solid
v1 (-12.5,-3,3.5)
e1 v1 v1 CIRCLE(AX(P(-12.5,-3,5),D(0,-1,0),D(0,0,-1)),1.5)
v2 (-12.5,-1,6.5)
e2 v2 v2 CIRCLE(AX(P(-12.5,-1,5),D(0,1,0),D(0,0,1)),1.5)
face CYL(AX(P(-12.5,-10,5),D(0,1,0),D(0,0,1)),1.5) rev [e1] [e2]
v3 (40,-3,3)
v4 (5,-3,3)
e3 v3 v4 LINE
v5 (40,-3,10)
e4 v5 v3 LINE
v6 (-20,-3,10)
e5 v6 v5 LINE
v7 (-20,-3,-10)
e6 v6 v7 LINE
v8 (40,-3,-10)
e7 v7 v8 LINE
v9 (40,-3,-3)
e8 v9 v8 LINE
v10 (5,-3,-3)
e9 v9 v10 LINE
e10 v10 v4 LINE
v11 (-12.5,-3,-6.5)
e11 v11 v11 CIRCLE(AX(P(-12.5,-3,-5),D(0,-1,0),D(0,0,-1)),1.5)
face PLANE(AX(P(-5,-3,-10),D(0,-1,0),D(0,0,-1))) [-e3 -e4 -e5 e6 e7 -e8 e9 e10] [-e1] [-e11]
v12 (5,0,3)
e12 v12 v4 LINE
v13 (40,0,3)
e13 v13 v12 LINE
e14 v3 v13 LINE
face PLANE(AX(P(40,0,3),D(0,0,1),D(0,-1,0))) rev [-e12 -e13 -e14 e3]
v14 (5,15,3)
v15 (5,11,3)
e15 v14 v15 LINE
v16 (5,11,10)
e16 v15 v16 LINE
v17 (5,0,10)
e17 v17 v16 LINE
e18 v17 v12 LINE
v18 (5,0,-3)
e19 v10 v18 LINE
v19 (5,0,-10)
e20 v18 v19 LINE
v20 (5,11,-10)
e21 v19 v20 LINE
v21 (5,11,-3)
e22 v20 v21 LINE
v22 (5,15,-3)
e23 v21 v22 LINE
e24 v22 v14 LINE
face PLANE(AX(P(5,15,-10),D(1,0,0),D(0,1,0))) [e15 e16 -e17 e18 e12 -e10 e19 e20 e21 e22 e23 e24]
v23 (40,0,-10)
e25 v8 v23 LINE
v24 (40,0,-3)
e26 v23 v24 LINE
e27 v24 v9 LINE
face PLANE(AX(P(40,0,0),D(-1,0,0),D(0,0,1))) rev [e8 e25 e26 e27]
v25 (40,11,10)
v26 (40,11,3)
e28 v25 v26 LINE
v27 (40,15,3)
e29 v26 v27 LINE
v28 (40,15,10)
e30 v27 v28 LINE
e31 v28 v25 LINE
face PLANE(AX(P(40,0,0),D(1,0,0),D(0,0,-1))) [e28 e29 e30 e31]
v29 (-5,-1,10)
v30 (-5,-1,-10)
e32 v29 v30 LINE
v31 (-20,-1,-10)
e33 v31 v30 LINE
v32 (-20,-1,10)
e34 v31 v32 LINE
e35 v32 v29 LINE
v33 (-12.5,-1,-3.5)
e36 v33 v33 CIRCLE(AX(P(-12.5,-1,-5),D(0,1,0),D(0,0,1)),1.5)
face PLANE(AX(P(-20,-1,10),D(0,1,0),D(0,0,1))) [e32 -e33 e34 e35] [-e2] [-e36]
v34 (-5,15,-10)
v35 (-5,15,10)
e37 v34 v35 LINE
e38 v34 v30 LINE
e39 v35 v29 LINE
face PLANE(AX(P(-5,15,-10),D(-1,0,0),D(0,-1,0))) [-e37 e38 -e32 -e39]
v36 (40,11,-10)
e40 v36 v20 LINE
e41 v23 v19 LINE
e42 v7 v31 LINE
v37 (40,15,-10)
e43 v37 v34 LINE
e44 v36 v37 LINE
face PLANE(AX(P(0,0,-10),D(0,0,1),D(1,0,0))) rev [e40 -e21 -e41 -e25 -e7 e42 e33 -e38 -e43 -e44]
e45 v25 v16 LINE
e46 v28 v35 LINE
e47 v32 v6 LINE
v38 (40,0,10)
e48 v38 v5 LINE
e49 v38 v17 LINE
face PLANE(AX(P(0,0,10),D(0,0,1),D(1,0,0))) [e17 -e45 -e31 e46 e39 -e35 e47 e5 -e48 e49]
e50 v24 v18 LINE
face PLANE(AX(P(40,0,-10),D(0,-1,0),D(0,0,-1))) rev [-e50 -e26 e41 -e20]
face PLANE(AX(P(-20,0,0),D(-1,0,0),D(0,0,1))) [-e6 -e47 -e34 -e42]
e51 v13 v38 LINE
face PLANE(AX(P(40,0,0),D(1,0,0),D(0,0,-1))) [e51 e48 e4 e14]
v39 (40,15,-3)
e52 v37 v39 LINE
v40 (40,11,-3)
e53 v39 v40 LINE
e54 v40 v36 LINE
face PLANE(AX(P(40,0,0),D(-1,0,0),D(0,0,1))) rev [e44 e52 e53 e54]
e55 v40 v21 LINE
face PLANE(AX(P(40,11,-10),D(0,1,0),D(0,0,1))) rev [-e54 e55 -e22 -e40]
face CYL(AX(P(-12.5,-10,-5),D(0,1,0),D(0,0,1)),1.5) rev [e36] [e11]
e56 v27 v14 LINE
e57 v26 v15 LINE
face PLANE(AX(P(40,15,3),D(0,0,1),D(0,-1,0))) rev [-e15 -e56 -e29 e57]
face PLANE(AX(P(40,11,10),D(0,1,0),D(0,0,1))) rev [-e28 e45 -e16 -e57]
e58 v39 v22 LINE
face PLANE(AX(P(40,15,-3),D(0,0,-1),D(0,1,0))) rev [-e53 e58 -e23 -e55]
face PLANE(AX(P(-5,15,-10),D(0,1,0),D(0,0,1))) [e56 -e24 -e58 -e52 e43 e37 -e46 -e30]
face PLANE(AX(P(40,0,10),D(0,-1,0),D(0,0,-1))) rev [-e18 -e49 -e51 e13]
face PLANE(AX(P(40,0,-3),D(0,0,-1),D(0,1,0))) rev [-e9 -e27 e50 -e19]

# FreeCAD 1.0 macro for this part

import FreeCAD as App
import Part
import Sketcher
from FreeCAD import Vector


def add_polygon(sketch, points):
    """Adds a closed chain of lines whose ends are joined by coincident constraints."""
    first, n = sketch.GeometryCount, len(points)
    for a, b in zip(points, points[1:] + points[:1]):
        sketch.addGeometry(Part.LineSegment(App.Vector(*a, 0), App.Vector(*b, 0)), False)
    for i in range(n):
        sketch.addConstraint(Sketcher.Constraint("Coincident", first + i, 2, first + (i + 1) % n, 1))

doc = App.newDocument("Part")
body = doc.addObject("PartDesign::Body", "Body")

# Sketch on XY plane
sketch1 = doc.addObject("Sketcher::SketchObject", "Sketch")
body.addObject(sketch1)
sketch1.AttachmentSupport = (doc.XY_Plane, [""])
sketch1.MapMode = "FlatFace"
add_polygon(sketch1, [(-5, 15), (-5, -3), (5, -3), (5, 15)])  # lines 0-3
sketch1.addConstraint(Sketcher.Constraint("Vertical", 0))
sketch1.addConstraint(Sketcher.Constraint("Horizontal", 1))
sketch1.addConstraint(Sketcher.Constraint("Vertical", 2))
sketch1.addConstraint(Sketcher.Constraint("Horizontal", 3))
sketch1.addConstraint(Sketcher.Constraint("DistanceX", 1, 1, 1, 2, 10.0))
sketch1.addConstraint(Sketcher.Constraint("DistanceY", 0, 2, 0, 1, 18.0))
sketch1.addConstraint(Sketcher.Constraint("DistanceX", 0, 2, -1, 1, 5.0))
sketch1.addConstraint(Sketcher.Constraint("DistanceY", 0, 2, -1, 1, 3.0))
pad1 = doc.addObject("PartDesign::Pad", "Pad")
body.addObject(pad1)
pad1.Profile = sketch1
pad1.Type = "TwoLengths"
pad1.Length = 10
pad1.Length2 = 10

# Sketch on YZ plane
sketch2 = doc.addObject("Sketcher::SketchObject", "Sketch001")
body.addObject(sketch2)
sketch2.AttachmentSupport = (doc.YZ_Plane, [""])
sketch2.MapMode = "FlatFace"
add_polygon(sketch2, [(-1, 10), (-3, 10), (-3, -10), (-1, -10)])  # lines 0-3
sketch2.addConstraint(Sketcher.Constraint("Horizontal", 0))
sketch2.addConstraint(Sketcher.Constraint("Vertical", 1))
sketch2.addConstraint(Sketcher.Constraint("Horizontal", 2))
sketch2.addConstraint(Sketcher.Constraint("Vertical", 3))
sketch2.addConstraint(Sketcher.Constraint("DistanceX", 0, 2, 0, 1, 2.0))
sketch2.addConstraint(Sketcher.Constraint("DistanceY", 1, 2, 1, 1, 20.0))
sketch2.addConstraint(Sketcher.Constraint("DistanceX", 0, 2, -1, 1, 3.0))
sketch2.addConstraint(Sketcher.Constraint("DistanceY", -1, 1, 0, 2, 10.0))
pad2 = doc.addObject("PartDesign::Pad", "Pad001")
body.addObject(pad2)
pad2.Profile = sketch2
pad2.Length = 20
pad2.Reversed = True

# Sketch on YZ plane
sketch3 = doc.addObject("Sketcher::SketchObject", "Sketch002")
body.addObject(sketch3)
sketch3.AttachmentSupport = (doc.YZ_Plane, [""])
sketch3.MapMode = "FlatFace"
add_polygon(sketch3, [(15, 10), (11, 10), (11, 3), (15, 3)])  # lines 0-3
add_polygon(sketch3, [(0, 10), (-3, 10), (-3, 3), (0, 3)])  # lines 4-7
add_polygon(sketch3, [(0, -3), (-3, -3), (-3, -10), (0, -10)])  # lines 8-11
add_polygon(sketch3, [(15, -3), (11, -3), (11, -10), (15, -10)])  # lines 12-15
sketch3.addConstraint(Sketcher.Constraint("Horizontal", 0))
sketch3.addConstraint(Sketcher.Constraint("Vertical", 1))
sketch3.addConstraint(Sketcher.Constraint("Horizontal", 2))
sketch3.addConstraint(Sketcher.Constraint("Vertical", 3))
sketch3.addConstraint(Sketcher.Constraint("Horizontal", 4))
sketch3.addConstraint(Sketcher.Constraint("Vertical", 5))
sketch3.addConstraint(Sketcher.Constraint("Horizontal", 6))
sketch3.addConstraint(Sketcher.Constraint("Vertical", 7))
sketch3.addConstraint(Sketcher.Constraint("Horizontal", 8))
sketch3.addConstraint(Sketcher.Constraint("Vertical", 9))
sketch3.addConstraint(Sketcher.Constraint("Horizontal", 10))
sketch3.addConstraint(Sketcher.Constraint("Vertical", 11))
sketch3.addConstraint(Sketcher.Constraint("Horizontal", 12))
sketch3.addConstraint(Sketcher.Constraint("Vertical", 13))
sketch3.addConstraint(Sketcher.Constraint("Horizontal", 14))
sketch3.addConstraint(Sketcher.Constraint("Vertical", 15))
sketch3.addConstraint(Sketcher.Constraint("Symmetric", 7, 2, 10, 2, -1, 1))
sketch3.addConstraint(Sketcher.Constraint("Symmetric", 5, 2, 8, 2, -1))
sketch3.addConstraint(Sketcher.Constraint("Symmetric", 1, 2, 12, 2, -1))
sketch3.addConstraint(Sketcher.Constraint("Symmetric", 3, 2, 14, 2, -1))
sketch3.addConstraint(Sketcher.Constraint("PointOnObject", 6, 2, -2))
sketch3.addConstraint(Sketcher.Constraint("Horizontal", 3, 2, 4, 2))
sketch3.addConstraint(Sketcher.Constraint("Horizontal", 2, 2, 5, 2))
sketch3.addConstraint(Sketcher.Constraint("DistanceX", 0, 2, 0, 1, 4.0))
sketch3.addConstraint(Sketcher.Constraint("DistanceX", 4, 2, 4, 1, 3.0))
sketch3.addConstraint(Sketcher.Constraint("DistanceY", 1, 2, 1, 1, 7.0))
sketch3.addConstraint(Sketcher.Constraint("DistanceX", -1, 1, 0, 2, 11.0))
sketch3.addConstraint(Sketcher.Constraint("DistanceY", -1, 1, 0, 2, 10.0))
pad3 = doc.addObject("PartDesign::Pad", "Pad002")
body.addObject(pad3)
pad3.Profile = sketch3
pad3.Length = 40

# Sketch on XZ plane
sketch4 = doc.addObject("Sketcher::SketchObject", "Sketch003")
body.addObject(sketch4)
sketch4.AttachmentSupport = (doc.XZ_Plane, [""])
sketch4.MapMode = "FlatFace"
sketch4.addGeometry(Part.Circle(Vector(-12.5, -5, 0), Vector(0, 0, 1), 1.5), False)
sketch4.addGeometry(Part.Circle(Vector(-12.5, 5, 0), Vector(0, 0, 1), 1.5), False)
sketch4.addConstraint(Sketcher.Constraint("Equal", 0, 1))
sketch4.addConstraint(Sketcher.Constraint("Symmetric", 0, 3, 1, 3, -1))
sketch4.addConstraint(Sketcher.Constraint("Diameter", 0, 3.0))
sketch4.addConstraint(Sketcher.Constraint("DistanceY", 0, 3, -1, 1, 5.0))
sketch4.addConstraint(Sketcher.Constraint("DistanceX", 0, 3, -1, 1, 12.5))
pocket1 = doc.addObject("PartDesign::Pocket", "Pocket")
body.addObject(pocket1)
pocket1.Profile = sketch4
pocket1.Length = 10
pocket1.Reversed = True

doc.recompute()
